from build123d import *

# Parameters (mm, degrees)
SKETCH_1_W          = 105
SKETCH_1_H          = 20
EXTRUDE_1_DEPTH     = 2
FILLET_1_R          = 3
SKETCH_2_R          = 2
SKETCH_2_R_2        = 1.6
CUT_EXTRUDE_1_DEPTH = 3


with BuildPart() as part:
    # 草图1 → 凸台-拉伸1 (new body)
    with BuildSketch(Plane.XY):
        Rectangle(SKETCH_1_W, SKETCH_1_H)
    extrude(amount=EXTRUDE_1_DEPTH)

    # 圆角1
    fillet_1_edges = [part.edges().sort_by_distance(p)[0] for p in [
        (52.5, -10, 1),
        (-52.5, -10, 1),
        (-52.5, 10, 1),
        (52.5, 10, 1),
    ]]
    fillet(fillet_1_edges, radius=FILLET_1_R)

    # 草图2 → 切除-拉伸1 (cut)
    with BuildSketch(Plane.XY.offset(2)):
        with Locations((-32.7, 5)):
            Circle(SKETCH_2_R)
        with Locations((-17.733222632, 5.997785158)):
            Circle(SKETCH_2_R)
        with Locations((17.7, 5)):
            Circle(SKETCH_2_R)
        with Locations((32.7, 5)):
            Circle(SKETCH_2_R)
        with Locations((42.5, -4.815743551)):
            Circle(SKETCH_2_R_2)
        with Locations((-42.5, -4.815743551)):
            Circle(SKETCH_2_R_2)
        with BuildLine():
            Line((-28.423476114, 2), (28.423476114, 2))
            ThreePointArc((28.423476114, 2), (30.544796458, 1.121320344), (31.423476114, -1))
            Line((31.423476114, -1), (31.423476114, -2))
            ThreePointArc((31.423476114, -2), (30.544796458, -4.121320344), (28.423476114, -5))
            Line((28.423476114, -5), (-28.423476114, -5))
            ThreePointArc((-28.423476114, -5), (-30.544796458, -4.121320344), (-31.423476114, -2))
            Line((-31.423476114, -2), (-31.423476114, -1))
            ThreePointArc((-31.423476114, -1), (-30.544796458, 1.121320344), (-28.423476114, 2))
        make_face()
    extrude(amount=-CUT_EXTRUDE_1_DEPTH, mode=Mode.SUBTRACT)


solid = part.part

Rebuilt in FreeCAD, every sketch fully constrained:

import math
import FreeCAD as App
import Part
import Sketcher
from FreeCAD import Vector
Q = App.Units.Quantity


def edges_at(feature, points):
    """Names of the edges that pass closest to the given points."""
    edges = feature.Shape.Edges
    near = lambda p: min(range(len(edges)), key=lambda i: edges[i].distToShape(Part.Vertex(*p))[0])
    return sorted({f"Edge{near(p) + 1}" for p in points})


def add_polygon(sketch, points):
    """Adds a closed chain of lines whose ends are joined by coincident constraints."""
    first, n = sketch.GeometryCount, len(points)
    for a, b in zip(points, points[1:] + points[:1]):
        sketch.addGeometry(Part.LineSegment(App.Vector(*a, 0), App.Vector(*b, 0)), False)
    for i in range(n):
        sketch.addConstraint(Sketcher.Constraint("Coincident", first + i, 2, first + (i + 1) % n, 1))

doc = App.newDocument("Part")
body = doc.addObject("PartDesign::Body", "Body")

# Sketch on XY plane
sketch1 = doc.addObject("Sketcher::SketchObject", "Sketch")
body.addObject(sketch1)
sketch1.AttachmentSupport = (doc.XY_Plane, [""])
sketch1.MapMode = "FlatFace"
add_polygon(sketch1, [(-52, 10), (-52, -10), (52, -10), (52, 10)])  # lines 0-3
sketch1.addConstraint([
    Sketcher.Constraint("Vertical", 0),
    Sketcher.Constraint("Horizontal", 1),
    Sketcher.Constraint("Vertical", 2),
    Sketcher.Constraint("Horizontal", 3),
    Sketcher.Constraint("Symmetric", 0, 2, 2, 2, -1, 1),
    Sketcher.Constraint("DistanceX", 1, 1, 1, 2, Q("105 mm")),
    Sketcher.Constraint("DistanceY", 0, 2, 0, 1, Q("20 mm")),
])
pad1 = doc.addObject("PartDesign::Pad", "Pad")
body.addObject(pad1)
pad1.Profile = sketch1
pad1.Length = 2
doc.recompute()

fillet = doc.addObject("PartDesign::Fillet", "Fillet")
body.addObject(fillet)
fillet.Base = (pad1, edges_at(pad1, [
    (52.5, -10, 1),
    (-52.5, -10, 1),
    (-52.5, 10, 1),
    (52.5, 10, 1),
]))
fillet.Radius = 3

# Sketch on XY plane
sketch2 = doc.addObject("Sketcher::SketchObject", "Sketch001")
body.addObject(sketch2)
sketch2.AttachmentSupport = (doc.XY_Plane, [""])
sketch2.MapMode = "FlatFace"
sketch2.AttachmentOffset = App.Placement(Vector(0, 0, 2), App.Rotation())
sketch2.addGeometry([
    Part.Circle(Vector(-32.7, 5, 0), Vector(0, 0, 1), 2),  # 0
    Part.Circle(Vector(-17.7, 6, 0), Vector(0, 0, 1), 2),  # 1
    Part.Circle(Vector(17.7, 5, 0), Vector(0, 0, 1), 2),  # 2
    Part.Circle(Vector(32.7, 5, 0), Vector(0, 0, 1), 2),  # 3
    Part.Circle(Vector(42.5, -4.8, 0), Vector(0, 0, 1), 1.6),  # 4
    Part.Circle(Vector(-42.5, -4.8, 0), Vector(0, 0, 1), 1.6),  # 5
    Part.LineSegment(Vector(28.4, 2, 0), Vector(-28.4, 2, 0)),  # 6
    Part.ArcOfCircle(Part.Circle(Vector(-28.4, -1, 0), Vector(0, 0, 1), 3), math.radians(90), math.radians(180)),  # 7
    Part.LineSegment(Vector(-31.4, -1, 0), Vector(-31.4, -2, 0)),  # 8
    Part.ArcOfCircle(Part.Circle(Vector(-28.4, -2, 0), Vector(0, 0, 1), 3), math.radians(180), math.radians(270)),  # 9
    Part.LineSegment(Vector(-28.4, -5, 0), Vector(28.4, -5, 0)),  # 10
    Part.ArcOfCircle(Part.Circle(Vector(28.4, -2, 0), Vector(0, 0, 1), 3), math.radians(-90), math.radians(0)),  # 11
    Part.LineSegment(Vector(31.4, -2, 0), Vector(31.4, -1, 0)),  # 12
    Part.ArcOfCircle(Part.Circle(Vector(28.4, -1, 0), Vector(0, 0, 1), 3), math.radians(0), math.radians(90)),  # 13
], False)
sketch2.addConstraint([
    Sketcher.Constraint("Tangent", 6, 2, 7, 1),
    Sketcher.Constraint("Tangent", 7, 2, 8, 1),
    Sketcher.Constraint("Tangent", 8, 2, 9, 1),
    Sketcher.Constraint("Tangent", 9, 2, 10, 1),
    Sketcher.Constraint("Tangent", 10, 2, 11, 1),
    Sketcher.Constraint("Tangent", 11, 2, 12, 1),
    Sketcher.Constraint("Tangent", 12, 2, 13, 1),
    Sketcher.Constraint("Tangent", 13, 2, 6, 1),
    Sketcher.Constraint("Horizontal", 6),
    Sketcher.Constraint("Vertical", 8),
    Sketcher.Constraint("Horizontal", 10),
    Sketcher.Constraint("Vertical", 12),
    Sketcher.Constraint("Equal", 0, 1),
    Sketcher.Constraint("Equal", 1, 2),
    Sketcher.Constraint("Equal", 2, 3),
    Sketcher.Constraint("Equal", 4, 5),
    Sketcher.Constraint("Equal", 7, 9),
    Sketcher.Constraint("Equal", 9, 11),
    Sketcher.Constraint("Equal", 11, 13),
    Sketcher.Constraint("Symmetric", 0, 3, 3, 3, -2),
    Sketcher.Constraint("Symmetric", 4, 3, 5, 3, -2),
    Sketcher.Constraint("Horizontal", 0, 3, 2, 3),
    Sketcher.Constraint("Diameter", 0, Q("4 mm")),
    Sketcher.Constraint("Radius", 7, Q("3 mm")),
    Sketcher.Constraint("Diameter", 4, Q("3.2 mm")),
    Sketcher.Constraint("DistanceY", 8, 2, 8, 1, Q("1 mm")),
    Sketcher.Constraint("DistanceY", -1, 1, 0, 3, Q("5 mm")),
    Sketcher.Constraint("DistanceY", 7, 3, -1, 1, Q("1 mm")),
    Sketcher.Constraint("DistanceX", 2, 3, 3, 3, Q("15 mm")),
    Sketcher.Constraint("DistanceX", 5, 3, 4, 3, Q("85 mm")),
    Sketcher.Constraint("DistanceX", 0, 3, -1, 1, Q("32.7 mm")),
    Sketcher.Constraint("DistanceX", 1, 3, 11, 3, Q("46.156699 mm")),
    Sketcher.Constraint("DistanceX", 6, 2, 6, 1, Q("56.846952 mm")),
    Sketcher.Constraint("DistanceY", 4, 3, 1, 3, Q("10.813529 mm")),
    Sketcher.Constraint("DistanceX", 1, 3, -1, 1, Q("17.733223 mm")),
    Sketcher.Constraint("DistanceY", -1, 1, 1, 3, Q("5.997785 mm")),
])
pocket1 = doc.addObject("PartDesign::Pocket", "Pocket")
body.addObject(pocket1)
pocket1.Profile = sketch2
pocket1.Length = 3

doc.recompute()
